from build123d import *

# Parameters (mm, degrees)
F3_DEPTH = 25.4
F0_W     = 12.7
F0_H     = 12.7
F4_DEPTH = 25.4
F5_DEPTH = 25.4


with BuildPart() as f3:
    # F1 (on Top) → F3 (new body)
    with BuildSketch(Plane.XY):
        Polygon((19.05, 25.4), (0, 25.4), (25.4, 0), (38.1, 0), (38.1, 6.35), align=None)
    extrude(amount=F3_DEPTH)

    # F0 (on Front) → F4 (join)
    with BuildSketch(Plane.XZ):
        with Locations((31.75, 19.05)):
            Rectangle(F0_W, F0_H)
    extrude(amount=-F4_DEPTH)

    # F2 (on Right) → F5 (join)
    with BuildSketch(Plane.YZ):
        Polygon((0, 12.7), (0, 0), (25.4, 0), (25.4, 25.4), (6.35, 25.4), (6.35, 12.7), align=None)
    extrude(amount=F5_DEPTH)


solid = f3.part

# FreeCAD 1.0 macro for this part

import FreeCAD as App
import Part
import Sketcher
Q = App.Units.Quantity

doc = App.newDocument("Part")
body = doc.addObject("PartDesign::Body", "Body")

# Sketch on XY plane
sketch1 = body.newObject("Sketcher::SketchObject", "Sketch")
sketch1.AttachmentSupport = (doc.getObject("XY_Plane"), [""])
sketch1.MapMode = "FlatFace"
sketch1.addGeometry([
    Part.LineSegment(App.Vector(19.05, 25.4, 0), App.Vector(0, 25.4, 0)),  # 0
    Part.LineSegment(App.Vector(0, 25.4, 0), App.Vector(25.4, 0, 0)),  # 1
    Part.LineSegment(App.Vector(25.4, 0, 0), App.Vector(38.1, 0, 0)),  # 2
    Part.LineSegment(App.Vector(38.1, 0, 0), App.Vector(38.1, 6.35, 0)),  # 3
    Part.LineSegment(App.Vector(38.1, 6.35, 0), App.Vector(19.05, 25.4, 0)),  # 4
], False)
sketch1.addConstraint([
    Sketcher.Constraint("Coincident", 0, 2, 1, 1),
    Sketcher.Constraint("Coincident", 1, 2, 2, 1),
    Sketcher.Constraint("Coincident", 2, 2, 3, 1),
    Sketcher.Constraint("Coincident", 3, 2, 4, 1),
    Sketcher.Constraint("Coincident", 4, 2, 0, 1),
    Sketcher.Constraint("Horizontal", 0),
    Sketcher.Constraint("Horizontal", 2),
    Sketcher.Constraint("Vertical", 3),
    Sketcher.Constraint("PointOnObject", 0, 2, -2),
    Sketcher.Constraint("PointOnObject", 1, 2, -1),
    Sketcher.Constraint("Parallel", 1, 4),
    Sketcher.Constraint("DistanceX", 2, 1, 2, 2, Q("0.5 in")),
    Sketcher.Constraint("DistanceY", -1, 1, 0, 2, Q("1 in")),
    Sketcher.Constraint("DistanceX", -1, 1, 1, 2, Q("1 in")),
    Sketcher.Constraint("DistanceX", 0, 2, 0, 1, Q("0.75 in")),
])
pad1 = body.newObject("PartDesign::Pad", "Pad")
pad1.Profile = sketch1
pad1.Length = Q("1 in")

# Sketch on XZ plane
sketch2 = body.newObject("Sketcher::SketchObject", "Sketch001")
sketch2.AttachmentSupport = (doc.getObject("XZ_Plane"), [""])
sketch2.MapMode = "FlatFace"
sketch2.addGeometry([
    Part.LineSegment(App.Vector(25.4, 25.4, 0), App.Vector(25.4, 12.7, 0)),
    Part.LineSegment(App.Vector(25.4, 12.7, 0), App.Vector(38.1, 12.7, 0)),
    Part.LineSegment(App.Vector(38.1, 12.7, 0), App.Vector(38.1, 25.4, 0)),
    Part.LineSegment(App.Vector(38.1, 25.4, 0), App.Vector(25.4, 25.4, 0)),
], False)
sketch2.addConstraint([
    Sketcher.Constraint("Coincident", 0, 2, 1, 1),
    Sketcher.Constraint("Coincident", 1, 2, 2, 1),
    Sketcher.Constraint("Coincident", 2, 2, 3, 1),
    Sketcher.Constraint("Coincident", 3, 2, 0, 1),
    Sketcher.Constraint("Vertical", 0),
    Sketcher.Constraint("Horizontal", 1),
    Sketcher.Constraint("Vertical", 2),
    Sketcher.Constraint("Horizontal", 3),
    Sketcher.Constraint("Equal", 3, 0),
    Sketcher.Constraint("DistanceX", 1, 1, 1, 2, Q("0.5 in")),
    Sketcher.Constraint("DistanceX", -1, 1, 0, 2, Q("1 in")),
    Sketcher.Constraint("DistanceY", -1, 1, 2, 2, Q("1 in")),
])
pad2 = body.newObject("PartDesign::Pad", "Pad001")
pad2.Profile = sketch2
pad2.Length = Q("1 in")
pad2.Reversed = True

# Sketch on YZ plane
sketch3 = body.newObject("Sketcher::SketchObject", "Sketch002")
sketch3.AttachmentSupport = (doc.getObject("YZ_Plane"), [""])
sketch3.MapMode = "FlatFace"
sketch3.addGeometry([
    Part.LineSegment(App.Vector(0, 12.7, 0), App.Vector(0, 0, 0)),  # 0
    Part.LineSegment(App.Vector(0, 0, 0), App.Vector(25.4, 0, 0)),  # 1
    Part.LineSegment(App.Vector(25.4, 0, 0), App.Vector(25.4, 25.4, 0)),  # 2
    Part.LineSegment(App.Vector(25.4, 25.4, 0), App.Vector(6.35, 25.4, 0)),  # 3
    Part.LineSegment(App.Vector(6.35, 25.4, 0), App.Vector(6.35, 12.7, 0)),  # 4
    Part.LineSegment(App.Vector(6.35, 12.7, 0), App.Vector(0, 12.7, 0)),  # 5
], False)
sketch3.addConstraint([
    Sketcher.Constraint("Coincident", 0, 2, 1, 1),
    Sketcher.Constraint("Coincident", 1, 2, 2, 1),
    Sketcher.Constraint("Coincident", 2, 2, 3, 1),
    Sketcher.Constraint("Coincident", 3, 2, 4, 1),
    Sketcher.Constraint("Coincident", 4, 2, 5, 1),
    Sketcher.Constraint("Coincident", 5, 2, 0, 1),
    Sketcher.Constraint("Vertical", 0),
    Sketcher.Constraint("Horizontal", 1),
    Sketcher.Constraint("Vertical", 2),
    Sketcher.Constraint("Horizontal", 3),
    Sketcher.Constraint("Vertical", 4),
    Sketcher.Constraint("Horizontal", 5),
    Sketcher.Constraint("Coincident", 0, 2, -1, 1),
    Sketcher.Constraint("Equal", 1, 2),
    Sketcher.Constraint("Equal", 0, 4),
    Sketcher.Constraint("DistanceX", 1, 1, 1, 2, Q("1 in")),
    Sketcher.Constraint("DistanceX", 3, 2, 3, 1, Q("0.75 in")),
])
pad3 = body.newObject("PartDesign::Pad", "Pad002")
pad3.Profile = sketch3
pad3.Length = Q("1 in")

doc.recompute()
